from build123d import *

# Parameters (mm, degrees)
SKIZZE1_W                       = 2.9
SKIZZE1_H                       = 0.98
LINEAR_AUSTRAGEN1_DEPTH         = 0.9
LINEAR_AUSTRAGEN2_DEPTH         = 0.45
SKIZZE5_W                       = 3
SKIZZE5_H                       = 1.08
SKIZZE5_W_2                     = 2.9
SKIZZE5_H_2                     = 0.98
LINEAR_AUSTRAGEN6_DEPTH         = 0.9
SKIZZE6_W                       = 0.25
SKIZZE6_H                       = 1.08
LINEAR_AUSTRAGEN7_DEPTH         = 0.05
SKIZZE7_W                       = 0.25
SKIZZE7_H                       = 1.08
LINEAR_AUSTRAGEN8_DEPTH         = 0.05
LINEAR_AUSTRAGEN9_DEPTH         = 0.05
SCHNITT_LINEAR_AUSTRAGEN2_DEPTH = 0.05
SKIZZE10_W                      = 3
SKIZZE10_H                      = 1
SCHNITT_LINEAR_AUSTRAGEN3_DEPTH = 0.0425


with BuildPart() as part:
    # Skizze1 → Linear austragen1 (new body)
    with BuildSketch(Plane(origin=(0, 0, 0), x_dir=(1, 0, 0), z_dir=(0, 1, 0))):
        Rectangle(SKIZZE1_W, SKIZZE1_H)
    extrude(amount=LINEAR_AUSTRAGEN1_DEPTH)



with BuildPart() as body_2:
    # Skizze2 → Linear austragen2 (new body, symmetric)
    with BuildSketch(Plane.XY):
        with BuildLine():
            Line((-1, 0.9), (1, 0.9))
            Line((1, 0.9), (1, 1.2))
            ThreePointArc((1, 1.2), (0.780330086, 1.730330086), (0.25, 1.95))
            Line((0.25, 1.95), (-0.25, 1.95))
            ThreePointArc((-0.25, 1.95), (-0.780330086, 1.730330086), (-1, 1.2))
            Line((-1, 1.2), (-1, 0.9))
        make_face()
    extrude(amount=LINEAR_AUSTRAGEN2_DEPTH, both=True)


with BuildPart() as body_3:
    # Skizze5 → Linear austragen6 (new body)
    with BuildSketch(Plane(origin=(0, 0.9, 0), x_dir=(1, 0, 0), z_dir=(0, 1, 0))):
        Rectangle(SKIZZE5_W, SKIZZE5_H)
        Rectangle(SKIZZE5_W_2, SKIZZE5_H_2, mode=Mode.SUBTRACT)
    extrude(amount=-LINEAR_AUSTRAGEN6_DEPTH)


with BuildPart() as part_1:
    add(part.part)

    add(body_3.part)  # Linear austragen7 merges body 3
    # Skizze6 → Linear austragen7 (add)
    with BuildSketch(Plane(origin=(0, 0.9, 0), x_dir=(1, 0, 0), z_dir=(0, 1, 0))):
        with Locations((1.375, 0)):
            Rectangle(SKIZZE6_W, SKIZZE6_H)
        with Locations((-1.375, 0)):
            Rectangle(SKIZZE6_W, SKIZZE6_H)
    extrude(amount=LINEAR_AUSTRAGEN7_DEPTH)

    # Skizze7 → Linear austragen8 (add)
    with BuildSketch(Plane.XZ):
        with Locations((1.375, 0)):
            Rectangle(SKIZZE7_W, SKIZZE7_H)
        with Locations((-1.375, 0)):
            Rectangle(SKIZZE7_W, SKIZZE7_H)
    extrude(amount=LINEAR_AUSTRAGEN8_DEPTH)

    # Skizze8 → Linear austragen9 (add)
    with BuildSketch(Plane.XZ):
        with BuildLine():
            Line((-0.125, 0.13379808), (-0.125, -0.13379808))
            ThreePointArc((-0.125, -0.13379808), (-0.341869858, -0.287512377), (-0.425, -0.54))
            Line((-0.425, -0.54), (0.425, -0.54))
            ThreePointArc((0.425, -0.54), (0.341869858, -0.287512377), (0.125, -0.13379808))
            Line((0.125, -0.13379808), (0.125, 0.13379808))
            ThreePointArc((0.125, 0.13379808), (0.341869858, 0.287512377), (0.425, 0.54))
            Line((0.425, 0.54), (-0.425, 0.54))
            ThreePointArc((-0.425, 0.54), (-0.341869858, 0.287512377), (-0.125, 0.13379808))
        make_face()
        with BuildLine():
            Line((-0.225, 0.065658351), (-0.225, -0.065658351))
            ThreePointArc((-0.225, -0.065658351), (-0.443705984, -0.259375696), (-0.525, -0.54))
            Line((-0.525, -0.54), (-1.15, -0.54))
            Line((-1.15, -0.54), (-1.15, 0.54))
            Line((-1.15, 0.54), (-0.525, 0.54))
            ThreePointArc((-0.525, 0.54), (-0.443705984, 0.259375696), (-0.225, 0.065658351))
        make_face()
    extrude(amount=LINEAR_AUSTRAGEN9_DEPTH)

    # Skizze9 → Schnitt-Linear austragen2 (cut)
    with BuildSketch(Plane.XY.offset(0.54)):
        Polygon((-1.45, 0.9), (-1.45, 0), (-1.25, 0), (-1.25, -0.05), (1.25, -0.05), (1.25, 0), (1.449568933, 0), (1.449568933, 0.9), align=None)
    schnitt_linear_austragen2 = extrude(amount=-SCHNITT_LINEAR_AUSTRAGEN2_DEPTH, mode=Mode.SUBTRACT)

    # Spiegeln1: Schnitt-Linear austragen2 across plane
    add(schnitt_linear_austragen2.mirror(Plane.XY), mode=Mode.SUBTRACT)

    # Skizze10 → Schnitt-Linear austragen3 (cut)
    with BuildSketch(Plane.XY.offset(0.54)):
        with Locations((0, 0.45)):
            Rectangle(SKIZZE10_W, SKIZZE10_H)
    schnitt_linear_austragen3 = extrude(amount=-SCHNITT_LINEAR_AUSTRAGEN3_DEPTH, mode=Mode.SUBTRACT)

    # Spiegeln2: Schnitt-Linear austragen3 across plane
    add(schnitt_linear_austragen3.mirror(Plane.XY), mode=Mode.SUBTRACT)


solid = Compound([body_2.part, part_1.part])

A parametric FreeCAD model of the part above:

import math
import FreeCAD as App
import Part
import Sketcher
from FreeCAD import Vector

doc = App.newDocument("Part")
body = doc.addObject("PartDesign::Body", "Body")

# Sketch on XZ plane
sketch1 = body.newObject("Sketcher::SketchObject", "Sketch")
sketch1.AttachmentSupport = (doc.getObject("XZ_Plane"), [""])
sketch1.MapMode = "FlatFace"
sketch1.addGeometry([
    Part.LineSegment(Vector(-1.45, -0.49, 0), Vector(-1.45, 0.49, 0)),
    Part.LineSegment(Vector(-1.45, 0.49, 0), Vector(1.45, 0.49, 0)),
    Part.LineSegment(Vector(1.45, 0.49, 0), Vector(1.45, -0.49, 0)),
    Part.LineSegment(Vector(1.45, -0.49, 0), Vector(-1.45, -0.49, 0)),
], False)
sketch1.addConstraint([
    Sketcher.Constraint("Coincident", 0, 2, 1, 1),
    Sketcher.Constraint("Coincident", 1, 2, 2, 1),
    Sketcher.Constraint("Coincident", 2, 2, 3, 1),
    Sketcher.Constraint("Coincident", 3, 2, 0, 1),
    Sketcher.Constraint("Vertical", 0),
    Sketcher.Constraint("Horizontal", 1),
    Sketcher.Constraint("Vertical", 2),
    Sketcher.Constraint("Horizontal", 3),
    Sketcher.Constraint("Symmetric", 0, 2, 2, 2, -1, 1),
    Sketcher.Constraint("DistanceX", 1, 1, 1, 2, 2.9),
    Sketcher.Constraint("DistanceY", 0, 1, 0, 2, 0.98),
])
pad1 = body.newObject("PartDesign::Pad", "Pad")
pad1.Profile = sketch1
pad1.Length = 0.9
pad1.Reversed = True
body2 = doc.addObject("PartDesign::Body", "Body001")

# Sketch on XY plane
sketch2 = body2.newObject("Sketcher::SketchObject", "Sketch001")
sketch2.AttachmentSupport = (doc.getObject("XY_Plane001"), [""])
sketch2.MapMode = "FlatFace"
sketch2.addGeometry([
    Part.LineSegment(Vector(-1, 0.9, 0), Vector(1, 0.9, 0)),  # 0
    Part.LineSegment(Vector(1, 0.9, 0), Vector(1, 1.2, 0)),  # 1
    Part.ArcOfCircle(Part.Circle(Vector(0.25, 1.2, 0), Vector(0, 0, 1), 0.75), math.radians(0), math.radians(90)),  # 2
    Part.LineSegment(Vector(0.25, 1.95, 0), Vector(-0.25, 1.95, 0)),  # 3
    Part.ArcOfCircle(Part.Circle(Vector(-0.25, 1.2, 0), Vector(0, 0, 1), 0.75), math.radians(90), math.radians(180)),  # 4
    Part.LineSegment(Vector(-1, 1.2, 0), Vector(-1, 0.9, 0)),  # 5
], False)
sketch2.addConstraint([
    Sketcher.Constraint("Coincident", 0, 2, 1, 1),
    Sketcher.Constraint("Tangent", 1, 2, 2, 1),
    Sketcher.Constraint("Tangent", 2, 2, 3, 1),
    Sketcher.Constraint("Tangent", 3, 2, 4, 1),
    Sketcher.Constraint("Tangent", 4, 2, 5, 1),
    Sketcher.Constraint("Coincident", 5, 2, 0, 1),
    Sketcher.Constraint("Horizontal", 0),
    Sketcher.Constraint("Vertical", 1),
    Sketcher.Constraint("Horizontal", 3),
    Sketcher.Constraint("Vertical", 5),
    Sketcher.Constraint("Equal", 2, 4),
    Sketcher.Constraint("DistanceX", 0, 1, 0, 2, 2.0),
    Sketcher.Constraint("Radius", 2, 0.75),
    Sketcher.Constraint("DistanceY", 1, 1, 1, 2, 0.3),
    Sketcher.Constraint("DistanceX", -1, 1, 0, 2, 1.0),
    Sketcher.Constraint("DistanceY", -1, 1, 2, 3, 1.2),
])
pad2 = body2.newObject("PartDesign::Pad", "Pad001")
pad2.Profile = sketch2
pad2.Length = 0.9
pad2.Midplane = True
body3 = doc.addObject("PartDesign::Body", "Body002")

# Sketch on XZ plane
sketch3 = body3.newObject("Sketcher::SketchObject", "Sketch002")
sketch3.AttachmentSupport = (doc.getObject("XZ_Plane002"), [""])
sketch3.MapMode = "FlatFace"
sketch3.AttachmentOffset = App.Placement(Vector(0, 0, -0.9), App.Rotation())
sketch3.addGeometry([
    Part.LineSegment(Vector(-1.5, -0.54, 0), Vector(-1.5, 0.54, 0)),  # 0
    Part.LineSegment(Vector(-1.5, 0.54, 0), Vector(1.5, 0.54, 0)),  # 1
    Part.LineSegment(Vector(1.5, 0.54, 0), Vector(1.5, -0.54, 0)),  # 2
    Part.LineSegment(Vector(1.5, -0.54, 0), Vector(-1.5, -0.54, 0)),  # 3
    Part.LineSegment(Vector(1.45, 0.49, 0), Vector(-1.45, 0.49, 0)),  # 4
    Part.LineSegment(Vector(-1.45, 0.49, 0), Vector(-1.45, -0.49, 0)),  # 5
    Part.LineSegment(Vector(-1.45, -0.49, 0), Vector(1.45, -0.49, 0)),  # 6
    Part.LineSegment(Vector(1.45, -0.49, 0), Vector(1.45, 0.49, 0)),  # 7
], False)
sketch3.addConstraint([
    Sketcher.Constraint("Coincident", 0, 2, 1, 1),
    Sketcher.Constraint("Coincident", 1, 2, 2, 1),
    Sketcher.Constraint("Coincident", 2, 2, 3, 1),
    Sketcher.Constraint("Coincident", 3, 2, 0, 1),
    Sketcher.Constraint("Coincident", 4, 2, 5, 1),
    Sketcher.Constraint("Coincident", 5, 2, 6, 1),
    Sketcher.Constraint("Coincident", 6, 2, 7, 1),
    Sketcher.Constraint("Coincident", 7, 2, 4, 1),
    Sketcher.Constraint("Vertical", 0),
    Sketcher.Constraint("Horizontal", 1),
    Sketcher.Constraint("Vertical", 2),
    Sketcher.Constraint("Horizontal", 3),
    Sketcher.Constraint("Horizontal", 4),
    Sketcher.Constraint("Vertical", 5),
    Sketcher.Constraint("Horizontal", 6),
    Sketcher.Constraint("Vertical", 7),
    Sketcher.Constraint("Symmetric", 0, 2, 2, 2, -1, 1),
    Sketcher.Constraint("Symmetric", 4, 2, 6, 2, -1, 1),
    Sketcher.Constraint("DistanceX", 1, 1, 1, 2, 3.0),
    Sketcher.Constraint("DistanceX", 4, 2, 4, 1, 2.9),
    Sketcher.Constraint("DistanceY", 0, 1, 0, 2, 1.08),
    Sketcher.Constraint("DistanceY", 5, 2, 5, 1, 0.98),
])
pad3 = body3.newObject("PartDesign::Pad", "Pad002")
pad3.Profile = sketch3
pad3.Length = 0.9
doc.recompute()

boolean = body.newObject("PartDesign::Boolean", "Boolean")
boolean.Type = "Fuse"
boolean.addObjects([body3])

# Sketch on XZ plane
sketch4 = body.newObject("Sketcher::SketchObject", "Sketch003")
sketch4.AttachmentSupport = (doc.getObject("XZ_Plane"), [""])
sketch4.MapMode = "FlatFace"
sketch4.AttachmentOffset = App.Placement(Vector(0, 0, -0.9), App.Rotation())
sketch4.addGeometry([
    Part.LineSegment(Vector(1.25, -0.54, 0), Vector(1.25, 0.54, 0)),  # 0
    Part.LineSegment(Vector(1.25, 0.54, 0), Vector(1.5, 0.54, 0)),  # 1
    Part.LineSegment(Vector(1.5, 0.54, 0), Vector(1.5, -0.54, 0)),  # 2
    Part.LineSegment(Vector(1.5, -0.54, 0), Vector(1.25, -0.54, 0)),  # 3
    Part.LineSegment(Vector(-1.5, -0.54, 0), Vector(-1.5, 0.54, 0)),  # 4
    Part.LineSegment(Vector(-1.5, 0.54, 0), Vector(-1.25, 0.54, 0)),  # 5
    Part.LineSegment(Vector(-1.25, 0.54, 0), Vector(-1.25, -0.54, 0)),  # 6
    Part.LineSegment(Vector(-1.25, -0.54, 0), Vector(-1.5, -0.54, 0)),  # 7
], False)
sketch4.addConstraint([
    Sketcher.Constraint("Coincident", 0, 2, 1, 1),
    Sketcher.Constraint("Coincident", 1, 2, 2, 1),
    Sketcher.Constraint("Coincident", 2, 2, 3, 1),
    Sketcher.Constraint("Coincident", 3, 2, 0, 1),
    Sketcher.Constraint("Coincident", 4, 2, 5, 1),
    Sketcher.Constraint("Coincident", 5, 2, 6, 1),
    Sketcher.Constraint("Coincident", 6, 2, 7, 1),
    Sketcher.Constraint("Coincident", 7, 2, 4, 1),
    Sketcher.Constraint("Vertical", 0),
    Sketcher.Constraint("Horizontal", 1),
    Sketcher.Constraint("Vertical", 2),
    Sketcher.Constraint("Horizontal", 3),
    Sketcher.Constraint("Vertical", 4),
    Sketcher.Constraint("Horizontal", 5),
    Sketcher.Constraint("Vertical", 6),
    Sketcher.Constraint("Horizontal", 7),
    Sketcher.Constraint("Symmetric", 2, 2, 4, 2, -1, 1),
    Sketcher.Constraint("Symmetric", 0, 2, 6, 2, -1, 1),
    Sketcher.Constraint("Horizontal", 1, 2, 4, 2),
    Sketcher.Constraint("DistanceX", 4, 2, 1, 2, 3.0),
    Sketcher.Constraint("DistanceX", 1, 1, 1, 2, 0.25),
    Sketcher.Constraint("DistanceY", 0, 1, 0, 2, 1.08),
])
pad4 = body.newObject("PartDesign::Pad", "Pad003")
pad4.Profile = sketch4
pad4.Length = 0.05
pad4.Reversed = True

# Sketch on XZ plane
sketch5 = body.newObject("Sketcher::SketchObject", "Sketch004")
sketch5.AttachmentSupport = (doc.getObject("XZ_Plane"), [""])
sketch5.MapMode = "FlatFace"
sketch5.addGeometry([
    Part.LineSegment(Vector(1.25, 0.54, 0), Vector(1.25, -0.54, 0)),  # 0
    Part.LineSegment(Vector(1.25, -0.54, 0), Vector(1.5, -0.54, 0)),  # 1
    Part.LineSegment(Vector(1.5, -0.54, 0), Vector(1.5, 0.54, 0)),  # 2
    Part.LineSegment(Vector(1.5, 0.54, 0), Vector(1.25, 0.54, 0)),  # 3
    Part.LineSegment(Vector(-1.5, 0.54, 0), Vector(-1.5, -0.54, 0)),  # 4
    Part.LineSegment(Vector(-1.5, -0.54, 0), Vector(-1.25, -0.54, 0)),  # 5
    Part.LineSegment(Vector(-1.25, -0.54, 0), Vector(-1.25, 0.54, 0)),  # 6
    Part.LineSegment(Vector(-1.25, 0.54, 0), Vector(-1.5, 0.54, 0)),  # 7
], False)
sketch5.addConstraint([
    Sketcher.Constraint("Coincident", 0, 2, 1, 1),
    Sketcher.Constraint("Coincident", 1, 2, 2, 1),
    Sketcher.Constraint("Coincident", 2, 2, 3, 1),
    Sketcher.Constraint("Coincident", 3, 2, 0, 1),
    Sketcher.Constraint("Coincident", 4, 2, 5, 1),
    Sketcher.Constraint("Coincident", 5, 2, 6, 1),
    Sketcher.Constraint("Coincident", 6, 2, 7, 1),
    Sketcher.Constraint("Coincident", 7, 2, 4, 1),
    Sketcher.Constraint("Vertical", 0),
    Sketcher.Constraint("Horizontal", 1),
    Sketcher.Constraint("Vertical", 2),
    Sketcher.Constraint("Horizontal", 3),
    Sketcher.Constraint("Vertical", 4),
    Sketcher.Constraint("Horizontal", 5),
    Sketcher.Constraint("Vertical", 6),
    Sketcher.Constraint("Horizontal", 7),
    Sketcher.Constraint("Symmetric", 2, 2, 4, 2, -1, 1),
    Sketcher.Constraint("Symmetric", 0, 2, 6, 2, -1, 1),
    Sketcher.Constraint("Horizontal", 1, 2, 4, 2),
    Sketcher.Constraint("DistanceX", 4, 2, 1, 2, 3.0),
    Sketcher.Constraint("DistanceX", 1, 1, 1, 2, 0.25),
    Sketcher.Constraint("DistanceY", 0, 2, 0, 1, 1.08),
])
pad5 = body.newObject("PartDesign::Pad", "Pad004")
pad5.Profile = sketch5
pad5.Length = 0.05

# Sketch on XZ plane
sketch6 = body.newObject("Sketcher::SketchObject", "Sketch005")
sketch6.AttachmentSupport = (doc.getObject("XZ_Plane"), [""])
sketch6.MapMode = "FlatFace"
sketch6.addGeometry([
    Part.LineSegment(Vector(-0.125, 0.133798, 0), Vector(-0.125, -0.133798, 0)),  # 0
    Part.ArcOfCircle(Part.Circle(Vector(0, -0.54, 0), Vector(0, 0, 1), 0.425), math.radians(107.104635), math.radians(180)),  # 1
    Part.LineSegment(Vector(-0.425, -0.54, 0), Vector(0.425, -0.54, 0)),  # 2
    Part.ArcOfCircle(Part.Circle(Vector(0, -0.54, 0), Vector(0, 0, 1), 0.425), math.radians(0), math.radians(72.895365)),  # 3
    Part.LineSegment(Vector(0.125, -0.133798, 0), Vector(0.125, 0.133798, 0)),  # 4
    Part.ArcOfCircle(Part.Circle(Vector(0, 0.54, 0), Vector(0, 0, 1), 0.425), math.radians(-72.895365), math.radians(0)),  # 5
    Part.LineSegment(Vector(0.425, 0.54, 0), Vector(-0.425, 0.54, 0)),  # 6
    Part.ArcOfCircle(Part.Circle(Vector(0, 0.54, 0), Vector(0, 0, 1), 0.425), math.radians(-180), math.radians(-107.104635)),  # 7
    Part.LineSegment(Vector(-0.225, -0.065658, 0), Vector(-0.225, 0.065658, 0)),  # 8
    Part.ArcOfCircle(Part.Circle(Vector(0, 0.54, 0), Vector(0, 0, 1), 0.525), math.radians(180), math.radians(244.623067)),  # 9
    Part.LineSegment(Vector(-0.525, 0.54, 0), Vector(-1.15, 0.54, 0)),  # 10
    Part.LineSegment(Vector(-1.15, 0.54, 0), Vector(-1.15, -0.54, 0)),  # 11
    Part.LineSegment(Vector(-1.15, -0.54, 0), Vector(-0.525, -0.54, 0)),  # 12
    Part.ArcOfCircle(Part.Circle(Vector(0, -0.54, 0), Vector(0, 0, 1), 0.525), math.radians(115.376933), math.radians(180)),  # 13
], False)
sketch6.addConstraint([
    Sketcher.Constraint("Coincident", 0, 2, 1, 1),
    Sketcher.Constraint("Coincident", 1, 2, 2, 1),
    Sketcher.Constraint("Coincident", 2, 2, 3, 1),
    Sketcher.Constraint("Coincident", 3, 2, 4, 1),
    Sketcher.Constraint("Coincident", 4, 2, 5, 1),
    Sketcher.Constraint("Coincident", 5, 2, 6, 1),
    Sketcher.Constraint("Coincident", 6, 2, 7, 1),
    Sketcher.Constraint("Coincident", 7, 2, 0, 1),
    Sketcher.Constraint("Coincident", 8, 2, 9, 2),
    Sketcher.Constraint("Coincident", 9, 1, 10, 1),
    Sketcher.Constraint("Coincident", 10, 2, 11, 1),
    Sketcher.Constraint("Coincident", 11, 2, 12, 1),
    Sketcher.Constraint("Coincident", 12, 2, 13, 2),
    Sketcher.Constraint("Coincident", 13, 1, 8, 1),
    Sketcher.Constraint("Vertical", 0),
    Sketcher.Constraint("Horizontal", 2),
    Sketcher.Constraint("Vertical", 4),
    Sketcher.Constraint("Horizontal", 6),
    Sketcher.Constraint("Vertical", 8),
    Sketcher.Constraint("Horizontal", 10),
    Sketcher.Constraint("Vertical", 11),
    Sketcher.Constraint("Horizontal", 12),
    Sketcher.Constraint("Coincident", 3, 3, 1, 3),
    Sketcher.Constraint("Coincident", 7, 3, 5, 3),
    Sketcher.Constraint("Coincident", 9, 3, 5, 3),
    Sketcher.Constraint("Coincident", 13, 3, 1, 3),
    Sketcher.Constraint("Equal", 1, 3),
    Sketcher.Constraint("Equal", 3, 5),
    Sketcher.Constraint("Equal", 5, 7),
    Sketcher.Constraint("Equal", 9, 13),
    Sketcher.Constraint("Symmetric", 1, 3, 5, 3, -1, 1),
    Sketcher.Constraint("Symmetric", 0, 2, 3, 2, -2),
    Sketcher.Constraint("Horizontal", 13, 3, 1, 2),
    Sketcher.Constraint("Horizontal", 9, 3, 5, 2),
    Sketcher.Constraint("Horizontal", 6, 2, 9, 1),
    Sketcher.Constraint("Horizontal", 2, 2, 11, 2),
    Sketcher.Constraint("Radius", 1, 0.425),
    Sketcher.Constraint("Radius", 9, 0.525),
    Sketcher.Constraint("DistanceY", 11, 2, 11, 1, 1.08),
    Sketcher.Constraint("DistanceX", 1, 2, 0, 2, 0.3),
    Sketcher.Constraint("DistanceX", 8, 2, 7, 2, 0.1),
    Sketcher.Constraint("DistanceX", 10, 2, 10, 1, 0.625),
])
pad6 = body.newObject("PartDesign::Pad", "Pad005")
pad6.Profile = sketch6
pad6.Length = 0.05

# Sketch on XY plane
sketch7 = body.newObject("Sketcher::SketchObject", "Sketch006")
sketch7.AttachmentSupport = (doc.getObject("XY_Plane"), [""])
sketch7.MapMode = "FlatFace"
sketch7.AttachmentOffset = App.Placement(Vector(0, 0, 0.54), App.Rotation())
sketch7.addGeometry([
    Part.LineSegment(Vector(-1.45, 0.9, 0), Vector(-1.45, 0, 0)),  # 0
    Part.LineSegment(Vector(-1.45, 0, 0), Vector(-1.25, 0, 0)),  # 1
    Part.LineSegment(Vector(-1.25, 0, 0), Vector(-1.25, -0.05, 0)),  # 2
    Part.LineSegment(Vector(-1.25, -0.05, 0), Vector(1.25, -0.05, 0)),  # 3
    Part.LineSegment(Vector(1.25, -0.05, 0), Vector(1.25, 0, 0)),  # 4
    Part.LineSegment(Vector(1.25, 0, 0), Vector(1.449569, 0, 0)),  # 5
    Part.LineSegment(Vector(1.449569, 0, 0), Vector(1.449569, 0.9, 0)),  # 6
    Part.LineSegment(Vector(1.449569, 0.9, 0), Vector(-1.45, 0.9, 0)),  # 7
], False)
sketch7.addConstraint([
    Sketcher.Constraint("Coincident", 0, 2, 1, 1),
    Sketcher.Constraint("Coincident", 1, 2, 2, 1),
    Sketcher.Constraint("Coincident", 2, 2, 3, 1),
    Sketcher.Constraint("Coincident", 3, 2, 4, 1),
    Sketcher.Constraint("Coincident", 4, 2, 5, 1),
    Sketcher.Constraint("Coincident", 5, 2, 6, 1),
    Sketcher.Constraint("Coincident", 6, 2, 7, 1),
    Sketcher.Constraint("Coincident", 7, 2, 0, 1),
    Sketcher.Constraint("Vertical", 0),
    Sketcher.Constraint("Horizontal", 1),
    Sketcher.Constraint("Vertical", 2),
    Sketcher.Constraint("Horizontal", 3),
    Sketcher.Constraint("Vertical", 4),
    Sketcher.Constraint("Horizontal", 5),
    Sketcher.Constraint("Vertical", 6),
    Sketcher.Constraint("Horizontal", 7),
    Sketcher.Constraint("Symmetric", 1, 2, 4, 2, -1, 1),
    Sketcher.Constraint("PointOnObject", 0, 2, -1),
    Sketcher.Constraint("DistanceX", 1, 1, 1, 2, 0.2),
    Sketcher.Constraint("DistanceX", 3, 1, 3, 2, 2.5),
    Sketcher.Constraint("DistanceY", 0, 2, 0, 1, 0.9),
    Sketcher.Constraint("DistanceY", 2, 2, 2, 1, 0.05),
    Sketcher.Constraint("DistanceX", 5, 1, 5, 2, 0.199569),
])
pocket1 = body.newObject("PartDesign::Pocket", "Pocket")
pocket1.Profile = sketch7
pocket1.Length = 0.05
doc.recompute()

mirrored = body.newObject("PartDesign::Mirrored", "Mirrored")
mirrored.Originals = [pocket1]
mirrored.MirrorPlane = (doc.getObject("XY_Plane"), [""])
body.Tip = mirrored

# Sketch on XY plane
sketch8 = body.newObject("Sketcher::SketchObject", "Sketch007")
sketch8.AttachmentSupport = (doc.getObject("XY_Plane"), [""])
sketch8.MapMode = "FlatFace"
sketch8.AttachmentOffset = App.Placement(Vector(0, 0, 0.54), App.Rotation())
sketch8.addGeometry([
    Part.LineSegment(Vector(-1.5, 0.95, 0), Vector(-1.5, -0.05, 0)),
    Part.LineSegment(Vector(-1.5, -0.05, 0), Vector(1.5, -0.05, 0)),
    Part.LineSegment(Vector(1.5, -0.05, 0), Vector(1.5, 0.95, 0)),
    Part.LineSegment(Vector(1.5, 0.95, 0), Vector(-1.5, 0.95, 0)),
], False)
sketch8.addConstraint([
    Sketcher.Constraint("Coincident", 0, 2, 1, 1),
    Sketcher.Constraint("Coincident", 1, 2, 2, 1),
    Sketcher.Constraint("Coincident", 2, 2, 3, 1),
    Sketcher.Constraint("Coincident", 3, 2, 0, 1),
    Sketcher.Constraint("Vertical", 0),
    Sketcher.Constraint("Horizontal", 1),
    Sketcher.Constraint("Vertical", 2),
    Sketcher.Constraint("Horizontal", 3),
    Sketcher.Constraint("DistanceX", 1, 1, 1, 2, 3.0),
    Sketcher.Constraint("DistanceY", 0, 2, 0, 1, 1.0),
    Sketcher.Constraint("DistanceX", 0, 2, -1, 1, 1.5),
    Sketcher.Constraint("DistanceY", 0, 2, -1, 1, 0.05),
])
pocket2 = body.newObject("PartDesign::Pocket", "Pocket001")
pocket2.Profile = sketch8
pocket2.Length = 0.0425
doc.recompute()

mirrored2 = body.newObject("PartDesign::Mirrored", "Mirrored001")
mirrored2.Originals = [pocket2]
mirrored2.MirrorPlane = (doc.getObject("XY_Plane"), [""])
body.Tip = mirrored2

doc.recompute()
